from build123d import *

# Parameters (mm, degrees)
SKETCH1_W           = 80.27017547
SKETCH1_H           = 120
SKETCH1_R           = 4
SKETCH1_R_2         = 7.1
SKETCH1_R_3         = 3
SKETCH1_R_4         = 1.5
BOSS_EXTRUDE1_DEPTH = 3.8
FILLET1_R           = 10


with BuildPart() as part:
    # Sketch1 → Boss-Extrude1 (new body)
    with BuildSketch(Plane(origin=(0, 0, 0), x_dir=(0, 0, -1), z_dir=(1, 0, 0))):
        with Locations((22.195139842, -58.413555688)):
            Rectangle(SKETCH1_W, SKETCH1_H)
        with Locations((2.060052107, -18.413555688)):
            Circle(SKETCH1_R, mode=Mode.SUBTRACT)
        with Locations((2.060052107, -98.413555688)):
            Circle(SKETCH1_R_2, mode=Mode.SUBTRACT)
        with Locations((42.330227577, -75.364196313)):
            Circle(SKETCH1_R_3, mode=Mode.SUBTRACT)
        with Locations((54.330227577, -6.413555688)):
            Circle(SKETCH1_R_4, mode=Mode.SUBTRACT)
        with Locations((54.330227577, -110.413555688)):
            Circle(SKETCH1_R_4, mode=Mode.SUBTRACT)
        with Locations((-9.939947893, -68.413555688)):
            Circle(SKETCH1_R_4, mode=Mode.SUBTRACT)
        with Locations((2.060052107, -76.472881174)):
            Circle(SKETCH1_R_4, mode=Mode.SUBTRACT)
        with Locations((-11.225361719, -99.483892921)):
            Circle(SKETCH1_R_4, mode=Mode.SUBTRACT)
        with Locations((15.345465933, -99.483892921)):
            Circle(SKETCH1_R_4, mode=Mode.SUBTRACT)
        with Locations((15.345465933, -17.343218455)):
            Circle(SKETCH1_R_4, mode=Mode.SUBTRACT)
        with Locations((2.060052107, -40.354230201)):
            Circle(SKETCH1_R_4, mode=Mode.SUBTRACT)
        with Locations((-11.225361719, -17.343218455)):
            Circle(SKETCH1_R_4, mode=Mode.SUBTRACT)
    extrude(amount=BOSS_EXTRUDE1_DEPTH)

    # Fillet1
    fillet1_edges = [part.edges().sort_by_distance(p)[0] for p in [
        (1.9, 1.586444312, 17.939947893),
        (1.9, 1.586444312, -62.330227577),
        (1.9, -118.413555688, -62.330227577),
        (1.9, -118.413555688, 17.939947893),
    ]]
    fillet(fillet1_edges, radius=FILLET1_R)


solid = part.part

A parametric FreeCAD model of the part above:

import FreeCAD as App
import Part
import Sketcher

V = App.Vector


def edges_at(feature, points):
    """Names of the edges that pass closest to the given points."""
    edges = feature.Shape.Edges
    near = lambda p: min(range(len(edges)), key=lambda i: edges[i].distToShape(Part.Vertex(*p))[0])
    return sorted({f"Edge{near(p) + 1}" for p in points})


def add_polygon(sketch, points):
    """Adds a closed chain of lines whose ends are joined by coincident constraints."""
    first, n = sketch.GeometryCount, len(points)
    for a, b in zip(points, points[1:] + points[:1]):
        sketch.addGeometry(Part.LineSegment(App.Vector(*a, 0), App.Vector(*b, 0)), False)
    for i in range(n):
        sketch.addConstraint(Sketcher.Constraint("Coincident", first + i, 2, first + (i + 1) % n, 1))

doc = App.newDocument("Part")
params = doc.addObject("Spreadsheet::Sheet", "Params")
for row, (alias, value) in enumerate([
    ("sketch1_diameter", "3 mm"),
    ("sketch1_diameter2", "6 mm"),
    ("sketch1_diameter3", "8 mm"),
    ("sketch1_diameter4", "14.2 mm"),
    ("sketch1_width", "120 mm"),
    ("pad1_length", "3.8 mm"),
    ("fillet_radius", "10 mm"),
], start=1):
    params.set(f"A{row}", alias)
    params.set(f"B{row}", "=" + value)
    params.setAlias(f"B{row}", alias)

body = doc.addObject("PartDesign::Body", "Body")

# Sketch on YZ plane
sketch1 = doc.addObject("Sketcher::SketchObject", "Sketch")
body.addObject(sketch1)
sketch1.AttachmentSupport = (doc.YZ_Plane, [""])
sketch1.MapMode = "FlatFace"
add_polygon(sketch1, [(1.6, 17.9), (-118.4, 17.9), (-118.4, -62.3), (1.6, -62.3)])  # lines 0-3
sketch1.addGeometry(Part.Circle(V(-99.5, 11.2, 0), V(0, 0, 1), 1.5), False)  # 4
sketch1.addGeometry(Part.Circle(V(-98.4, -2.1, 0), V(0, 0, 1), 7.1), False)  # 5
sketch1.addGeometry(Part.Circle(V(-99.5, -15.3, 0), V(0, 0, 1), 1.5), False)  # 6
sketch1.addGeometry(Part.Circle(V(-76.5, -2.1, 0), V(0, 0, 1), 1.5), False)  # 7
sketch1.addGeometry(Part.Circle(V(-68.4, 9.9, 0), V(0, 0, 1), 1.5), False)  # 8
sketch1.addGeometry(Part.Circle(V(-110.4, -54.3, 0), V(0, 0, 1), 1.5), False)  # 9
sketch1.addGeometry(Part.Circle(V(-75.4, -42.3, 0), V(0, 0, 1), 3), False)  # 10
sketch1.addGeometry(Part.Circle(V(-40.4, -2.1, 0), V(0, 0, 1), 1.5), False)  # 11
sketch1.addGeometry(Part.Circle(V(-18.4, -2.1, 0), V(0, 0, 1), 4), False)  # 12
sketch1.addGeometry(Part.Circle(V(-17.3, 11.2, 0), V(0, 0, 1), 1.5), False)  # 13
sketch1.addGeometry(Part.Circle(V(-17.3, -15.3, 0), V(0, 0, 1), 1.5), False)  # 14
sketch1.addGeometry(Part.Circle(V(-6.4, -54.3, 0), V(0, 0, 1), 1.5), False)  # 15
sketch1.addConstraint([
    Sketcher.Constraint("Horizontal", 0),
    Sketcher.Constraint("Vertical", 1),
    Sketcher.Constraint("Horizontal", 2),
    Sketcher.Constraint("Vertical", 3),
    Sketcher.Constraint("Equal", 4, 6),
    Sketcher.Constraint("Equal", 6, 7),
    Sketcher.Constraint("Equal", 7, 8),
    Sketcher.Constraint("Equal", 8, 9),
    Sketcher.Constraint("Equal", 9, 11),
    Sketcher.Constraint("Equal", 11, 13),
    Sketcher.Constraint("Equal", 13, 14),
    Sketcher.Constraint("Equal", 14, 15),
    Sketcher.Constraint("Horizontal", 5, 3, 7, 3),
    Sketcher.Constraint("Horizontal", 7, 3, 11, 3),
    Sketcher.Constraint("Horizontal", 11, 3, 12, 3),
    Sketcher.Constraint("Horizontal", 4, 3, 13, 3),
    Sketcher.Constraint("Horizontal", 6, 3, 14, 3),
    Sketcher.Constraint("Horizontal", 9, 3, 15, 3),
    Sketcher.Constraint("Vertical", 4, 3, 6, 3),
    Sketcher.Constraint("Vertical", 13, 3, 14, 3),
    Sketcher.Constraint("Diameter", 4, 3.0),
    Sketcher.Constraint("Diameter", 10, 6.0),
    Sketcher.Constraint("Diameter", 12, 8.0),
    Sketcher.Constraint("Diameter", 5, 14.2),
    Sketcher.Constraint("DistanceX", 0, 2, 0, 1, 120.0),
    Sketcher.Constraint("DistanceY", 7, 3, 8, 3, 12.0),
    Sketcher.Constraint("DistanceX", 5, 3, 8, 3, 30.0),
    Sketcher.Constraint("DistanceX", 9, 3, 5, 3, 12.0),
    Sketcher.Constraint("DistanceY", 9, 3, 10, 3, 12.0),
    Sketcher.Constraint("DistanceX", 8, 3, 12, 3, 50.0),
    Sketcher.Constraint("DistanceX", 12, 3, 15, 3, 12.0),
    Sketcher.Constraint("DistanceX", 0, 2, 5, 3, 20.0),
    Sketcher.Constraint("DistanceY", 5, 3, 0, 2, 20.0),
    Sketcher.Constraint("DistanceY", 1, 2, 9, 3, 8.0),
    Sketcher.Constraint("DistanceY", 1, 2, 1, 1, 80.270175),
    Sketcher.Constraint("DistanceY", -1, 1, 4, 3, 11.225362),
    Sketcher.Constraint("DistanceX", 7, 3, -1, 1, 76.472881),
    Sketcher.Constraint("DistanceX", 11, 3, -1, 1, 40.35423),
    Sketcher.Constraint("DistanceX", 13, 3, -1, 1, 17.343218),
    Sketcher.Constraint("DistanceX", 6, 3, 7, 3, 23.011012),
    Sketcher.Constraint("DistanceY", 9, 3, 6, 3, 38.984762),
    Sketcher.Constraint("DistanceY", 9, 3, 4, 3, 65.555589),
    Sketcher.Constraint("DistanceX", 9, 3, 10, 3, 35.049359),
    Sketcher.Constraint("DistanceX", 5, 3, -1, 1, 98.413556),
])
sketch1.setExpression("Constraints[24]", "Params.sketch1_diameter")
sketch1.setExpression("Constraints[25]", "Params.sketch1_diameter2")
sketch1.setExpression("Constraints[26]", "Params.sketch1_diameter3")
sketch1.setExpression("Constraints[27]", "Params.sketch1_diameter4")
sketch1.setExpression("Constraints[28]", "Params.sketch1_width")
pad1 = doc.addObject("PartDesign::Pad", "Pad")
body.addObject(pad1)
pad1.Profile = sketch1
pad1.setExpression("Length", "Params.pad1_length")
doc.recompute()

fillet = doc.addObject("PartDesign::Fillet", "Fillet")
body.addObject(fillet)
fillet.Base = (pad1, edges_at(pad1, [
    (1.9, 1.586, 17.94),
    (1.9, 1.586, -62.33),
    (1.9, -118.414, -62.33),
    (1.9, -118.414, 17.94),
]))
fillet.setExpression("Radius", "Params.fillet_radius")

doc.recompute()
